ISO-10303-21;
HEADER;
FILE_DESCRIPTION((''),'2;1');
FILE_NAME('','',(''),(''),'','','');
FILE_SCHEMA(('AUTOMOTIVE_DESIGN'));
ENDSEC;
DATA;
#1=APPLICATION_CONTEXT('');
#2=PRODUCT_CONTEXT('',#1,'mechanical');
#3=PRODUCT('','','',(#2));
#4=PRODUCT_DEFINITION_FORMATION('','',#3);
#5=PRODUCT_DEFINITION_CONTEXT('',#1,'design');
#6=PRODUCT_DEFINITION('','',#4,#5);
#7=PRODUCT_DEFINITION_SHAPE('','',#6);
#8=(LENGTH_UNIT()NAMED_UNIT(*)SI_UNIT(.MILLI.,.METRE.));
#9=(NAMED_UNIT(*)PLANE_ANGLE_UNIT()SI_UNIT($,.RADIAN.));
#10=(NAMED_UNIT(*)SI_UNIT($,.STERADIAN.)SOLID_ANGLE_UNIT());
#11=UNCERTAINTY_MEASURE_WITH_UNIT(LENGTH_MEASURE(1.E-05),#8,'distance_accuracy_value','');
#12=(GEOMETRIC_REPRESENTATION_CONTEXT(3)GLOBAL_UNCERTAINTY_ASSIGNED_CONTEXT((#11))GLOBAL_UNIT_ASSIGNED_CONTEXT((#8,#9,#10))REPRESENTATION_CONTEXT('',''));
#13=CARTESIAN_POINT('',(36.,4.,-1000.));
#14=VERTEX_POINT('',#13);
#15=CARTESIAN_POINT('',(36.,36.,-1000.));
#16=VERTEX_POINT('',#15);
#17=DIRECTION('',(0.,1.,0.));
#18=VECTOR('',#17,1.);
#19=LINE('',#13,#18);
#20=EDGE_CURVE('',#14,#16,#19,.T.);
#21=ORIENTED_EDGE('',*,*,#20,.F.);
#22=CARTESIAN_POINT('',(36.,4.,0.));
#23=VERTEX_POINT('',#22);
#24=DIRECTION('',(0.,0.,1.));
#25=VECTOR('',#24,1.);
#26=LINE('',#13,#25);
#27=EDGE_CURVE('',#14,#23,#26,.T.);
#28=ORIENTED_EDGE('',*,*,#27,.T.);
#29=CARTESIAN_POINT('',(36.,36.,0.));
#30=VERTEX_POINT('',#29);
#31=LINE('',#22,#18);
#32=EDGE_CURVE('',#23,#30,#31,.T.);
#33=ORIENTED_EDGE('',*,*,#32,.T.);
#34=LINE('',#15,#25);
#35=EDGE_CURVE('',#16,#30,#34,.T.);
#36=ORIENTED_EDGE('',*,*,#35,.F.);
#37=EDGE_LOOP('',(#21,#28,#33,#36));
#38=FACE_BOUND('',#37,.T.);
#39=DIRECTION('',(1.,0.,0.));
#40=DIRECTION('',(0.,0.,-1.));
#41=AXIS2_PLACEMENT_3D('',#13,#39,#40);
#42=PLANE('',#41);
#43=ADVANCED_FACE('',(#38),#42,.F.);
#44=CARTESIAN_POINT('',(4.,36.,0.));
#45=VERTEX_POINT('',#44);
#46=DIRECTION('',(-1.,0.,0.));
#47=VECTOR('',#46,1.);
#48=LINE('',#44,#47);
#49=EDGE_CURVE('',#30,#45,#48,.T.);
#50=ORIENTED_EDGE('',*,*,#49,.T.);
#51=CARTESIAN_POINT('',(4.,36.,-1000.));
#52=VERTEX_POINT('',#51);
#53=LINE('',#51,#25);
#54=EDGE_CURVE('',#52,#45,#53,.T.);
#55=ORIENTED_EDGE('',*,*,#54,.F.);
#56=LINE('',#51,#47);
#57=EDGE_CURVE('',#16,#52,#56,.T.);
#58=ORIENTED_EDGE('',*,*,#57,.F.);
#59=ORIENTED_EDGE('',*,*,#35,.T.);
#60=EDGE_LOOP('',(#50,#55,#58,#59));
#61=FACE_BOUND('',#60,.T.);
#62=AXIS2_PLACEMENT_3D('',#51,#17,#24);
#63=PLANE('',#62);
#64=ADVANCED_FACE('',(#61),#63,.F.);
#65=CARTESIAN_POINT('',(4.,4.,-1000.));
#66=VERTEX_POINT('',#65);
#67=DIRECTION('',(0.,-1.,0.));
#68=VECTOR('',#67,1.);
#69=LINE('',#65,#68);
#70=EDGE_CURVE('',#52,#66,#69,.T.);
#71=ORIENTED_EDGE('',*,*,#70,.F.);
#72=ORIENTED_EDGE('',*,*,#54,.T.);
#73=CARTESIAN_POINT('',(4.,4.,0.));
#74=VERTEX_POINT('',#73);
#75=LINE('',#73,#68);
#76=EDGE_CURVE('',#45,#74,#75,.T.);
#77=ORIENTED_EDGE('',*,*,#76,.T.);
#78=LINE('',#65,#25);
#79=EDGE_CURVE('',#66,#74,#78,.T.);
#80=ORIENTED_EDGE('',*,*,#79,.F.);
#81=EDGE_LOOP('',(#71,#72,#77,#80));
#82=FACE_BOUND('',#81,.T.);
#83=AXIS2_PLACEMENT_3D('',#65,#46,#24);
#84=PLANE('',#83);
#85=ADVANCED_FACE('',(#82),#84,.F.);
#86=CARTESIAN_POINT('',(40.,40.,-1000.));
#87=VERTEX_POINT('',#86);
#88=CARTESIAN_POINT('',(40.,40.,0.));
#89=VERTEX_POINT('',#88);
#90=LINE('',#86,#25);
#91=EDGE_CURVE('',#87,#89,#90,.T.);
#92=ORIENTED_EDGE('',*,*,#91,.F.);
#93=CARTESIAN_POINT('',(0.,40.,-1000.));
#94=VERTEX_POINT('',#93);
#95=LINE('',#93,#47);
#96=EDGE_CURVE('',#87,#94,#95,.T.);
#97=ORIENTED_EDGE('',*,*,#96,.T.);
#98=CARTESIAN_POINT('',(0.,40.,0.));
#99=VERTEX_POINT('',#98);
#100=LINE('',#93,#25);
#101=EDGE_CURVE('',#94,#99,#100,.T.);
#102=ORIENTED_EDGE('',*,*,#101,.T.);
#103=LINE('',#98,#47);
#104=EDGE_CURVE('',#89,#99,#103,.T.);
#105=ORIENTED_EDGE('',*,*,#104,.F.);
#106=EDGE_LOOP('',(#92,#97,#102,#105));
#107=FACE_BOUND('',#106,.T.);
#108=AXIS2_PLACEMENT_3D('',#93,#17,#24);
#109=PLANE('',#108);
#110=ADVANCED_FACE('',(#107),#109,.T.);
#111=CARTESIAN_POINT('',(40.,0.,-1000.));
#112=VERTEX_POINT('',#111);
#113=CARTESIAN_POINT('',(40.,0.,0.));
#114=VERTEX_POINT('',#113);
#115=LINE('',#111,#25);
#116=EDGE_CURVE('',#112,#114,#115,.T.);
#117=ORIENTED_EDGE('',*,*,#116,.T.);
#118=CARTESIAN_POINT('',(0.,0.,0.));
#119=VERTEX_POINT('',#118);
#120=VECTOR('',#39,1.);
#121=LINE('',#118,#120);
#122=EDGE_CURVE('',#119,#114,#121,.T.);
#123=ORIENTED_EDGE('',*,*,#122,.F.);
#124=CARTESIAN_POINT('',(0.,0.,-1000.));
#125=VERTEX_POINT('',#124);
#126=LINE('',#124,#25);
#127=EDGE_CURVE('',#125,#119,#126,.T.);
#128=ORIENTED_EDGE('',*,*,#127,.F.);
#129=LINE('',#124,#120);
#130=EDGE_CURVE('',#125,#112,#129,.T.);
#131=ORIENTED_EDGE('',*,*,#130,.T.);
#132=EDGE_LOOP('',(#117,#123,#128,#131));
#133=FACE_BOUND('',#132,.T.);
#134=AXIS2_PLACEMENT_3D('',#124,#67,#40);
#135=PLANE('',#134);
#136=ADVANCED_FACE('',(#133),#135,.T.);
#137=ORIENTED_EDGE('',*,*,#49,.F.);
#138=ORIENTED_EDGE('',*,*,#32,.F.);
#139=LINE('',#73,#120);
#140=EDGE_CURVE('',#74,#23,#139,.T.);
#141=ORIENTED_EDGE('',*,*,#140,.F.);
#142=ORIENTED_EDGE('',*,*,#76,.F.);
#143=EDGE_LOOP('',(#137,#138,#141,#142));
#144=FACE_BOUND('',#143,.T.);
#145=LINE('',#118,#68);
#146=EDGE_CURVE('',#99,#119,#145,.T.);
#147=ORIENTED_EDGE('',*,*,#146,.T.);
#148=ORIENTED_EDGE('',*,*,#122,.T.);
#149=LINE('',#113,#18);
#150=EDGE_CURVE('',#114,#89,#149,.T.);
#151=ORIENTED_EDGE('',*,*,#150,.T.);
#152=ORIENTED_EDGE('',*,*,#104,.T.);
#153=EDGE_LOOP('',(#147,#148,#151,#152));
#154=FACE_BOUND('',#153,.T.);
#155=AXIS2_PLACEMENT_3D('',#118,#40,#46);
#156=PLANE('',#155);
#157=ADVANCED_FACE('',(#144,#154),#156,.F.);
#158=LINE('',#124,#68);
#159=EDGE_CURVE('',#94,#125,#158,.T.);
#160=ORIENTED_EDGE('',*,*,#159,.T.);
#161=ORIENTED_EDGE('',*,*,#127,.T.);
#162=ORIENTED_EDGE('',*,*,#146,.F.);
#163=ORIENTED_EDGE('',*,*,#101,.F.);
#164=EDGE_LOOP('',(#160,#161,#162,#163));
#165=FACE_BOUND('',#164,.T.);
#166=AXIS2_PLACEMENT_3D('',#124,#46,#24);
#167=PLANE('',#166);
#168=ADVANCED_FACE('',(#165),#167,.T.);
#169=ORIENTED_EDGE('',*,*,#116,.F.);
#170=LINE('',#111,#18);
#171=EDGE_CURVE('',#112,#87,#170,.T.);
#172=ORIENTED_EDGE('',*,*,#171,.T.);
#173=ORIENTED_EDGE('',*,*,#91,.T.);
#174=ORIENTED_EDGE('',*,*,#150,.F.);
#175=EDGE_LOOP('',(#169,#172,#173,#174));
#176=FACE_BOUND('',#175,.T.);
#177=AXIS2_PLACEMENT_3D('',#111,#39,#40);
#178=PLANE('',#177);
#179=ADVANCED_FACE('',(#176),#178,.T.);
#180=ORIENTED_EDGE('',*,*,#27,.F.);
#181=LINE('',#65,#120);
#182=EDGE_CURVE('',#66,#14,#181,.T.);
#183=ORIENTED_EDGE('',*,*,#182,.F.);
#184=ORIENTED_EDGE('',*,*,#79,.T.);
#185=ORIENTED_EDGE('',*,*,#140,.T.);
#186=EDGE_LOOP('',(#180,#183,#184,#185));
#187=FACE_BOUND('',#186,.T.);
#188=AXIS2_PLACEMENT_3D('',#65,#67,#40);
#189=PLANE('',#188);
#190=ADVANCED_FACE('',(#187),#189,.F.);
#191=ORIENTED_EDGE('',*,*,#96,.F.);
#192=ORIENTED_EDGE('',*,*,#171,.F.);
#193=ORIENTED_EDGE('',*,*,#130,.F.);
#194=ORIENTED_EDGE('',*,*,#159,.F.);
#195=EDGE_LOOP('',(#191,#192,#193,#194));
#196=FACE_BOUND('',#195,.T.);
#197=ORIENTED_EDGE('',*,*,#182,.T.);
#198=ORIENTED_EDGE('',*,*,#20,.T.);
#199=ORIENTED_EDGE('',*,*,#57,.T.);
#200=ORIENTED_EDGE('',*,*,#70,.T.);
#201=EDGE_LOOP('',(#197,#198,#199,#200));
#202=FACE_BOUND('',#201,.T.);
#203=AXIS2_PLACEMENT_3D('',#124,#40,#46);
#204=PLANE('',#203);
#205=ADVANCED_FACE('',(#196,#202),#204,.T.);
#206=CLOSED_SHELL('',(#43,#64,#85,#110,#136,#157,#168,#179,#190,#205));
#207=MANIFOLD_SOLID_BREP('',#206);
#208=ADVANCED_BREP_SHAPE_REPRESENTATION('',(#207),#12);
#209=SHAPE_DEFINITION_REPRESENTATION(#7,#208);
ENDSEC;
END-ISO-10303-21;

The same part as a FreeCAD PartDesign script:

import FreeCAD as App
import Part
import Sketcher
from FreeCAD import Vector

doc = App.newDocument("Part")
body = doc.addObject("PartDesign::Body", "Body")

# Sketch on XY plane
sketch1 = body.newObject("Sketcher::SketchObject", "Sketch")
sketch1.AttachmentSupport = (doc.getObject("XY_Plane"), [""])
sketch1.MapMode = "FlatFace"
sketch1.addGeometry([
    Part.LineSegment(Vector(0, 40, 0), Vector(0, 0, 0)),  # 0
    Part.LineSegment(Vector(0, 0, 0), Vector(40, 0, 0)),  # 1
    Part.LineSegment(Vector(40, 0, 0), Vector(40, 40, 0)),  # 2
    Part.LineSegment(Vector(40, 40, 0), Vector(0, 40, 0)),  # 3
    Part.LineSegment(Vector(36, 4, 0), Vector(4, 4, 0)),  # 4
    Part.LineSegment(Vector(4, 4, 0), Vector(4, 36, 0)),  # 5
    Part.LineSegment(Vector(4, 36, 0), Vector(36, 36, 0)),  # 6
    Part.LineSegment(Vector(36, 36, 0), Vector(36, 4, 0)),  # 7
], False)
sketch1.addConstraint([
    Sketcher.Constraint("Coincident", 0, 2, 1, 1),
    Sketcher.Constraint("Coincident", 1, 2, 2, 1),
    Sketcher.Constraint("Coincident", 2, 2, 3, 1),
    Sketcher.Constraint("Coincident", 3, 2, 0, 1),
    Sketcher.Constraint("Coincident", 4, 2, 5, 1),
    Sketcher.Constraint("Coincident", 5, 2, 6, 1),
    Sketcher.Constraint("Coincident", 6, 2, 7, 1),
    Sketcher.Constraint("Coincident", 7, 2, 4, 1),
    Sketcher.Constraint("Vertical", 0),
    Sketcher.Constraint("Horizontal", 1),
    Sketcher.Constraint("Vertical", 2),
    Sketcher.Constraint("Horizontal", 3),
    Sketcher.Constraint("Horizontal", 4),
    Sketcher.Constraint("Vertical", 5),
    Sketcher.Constraint("Horizontal", 6),
    Sketcher.Constraint("Vertical", 7),
    Sketcher.Constraint("Coincident", 0, 2, -1, 1),
    Sketcher.Constraint("Equal", 3, 0),
    Sketcher.Constraint("Equal", 6, 5),
    Sketcher.Constraint("DistanceX", 1, 1, 1, 2, 40.0),
    Sketcher.Constraint("DistanceX", 4, 2, 4, 1, 32.0),
    Sketcher.Constraint("DistanceX", -1, 1, 4, 2, 4.0),
    Sketcher.Constraint("DistanceY", -1, 1, 4, 2, 4.0),
])
pad1 = body.newObject("PartDesign::Pad", "Pad")
pad1.Profile = sketch1
pad1.Length = 1000
pad1.Reversed = True

doc.recompute()
